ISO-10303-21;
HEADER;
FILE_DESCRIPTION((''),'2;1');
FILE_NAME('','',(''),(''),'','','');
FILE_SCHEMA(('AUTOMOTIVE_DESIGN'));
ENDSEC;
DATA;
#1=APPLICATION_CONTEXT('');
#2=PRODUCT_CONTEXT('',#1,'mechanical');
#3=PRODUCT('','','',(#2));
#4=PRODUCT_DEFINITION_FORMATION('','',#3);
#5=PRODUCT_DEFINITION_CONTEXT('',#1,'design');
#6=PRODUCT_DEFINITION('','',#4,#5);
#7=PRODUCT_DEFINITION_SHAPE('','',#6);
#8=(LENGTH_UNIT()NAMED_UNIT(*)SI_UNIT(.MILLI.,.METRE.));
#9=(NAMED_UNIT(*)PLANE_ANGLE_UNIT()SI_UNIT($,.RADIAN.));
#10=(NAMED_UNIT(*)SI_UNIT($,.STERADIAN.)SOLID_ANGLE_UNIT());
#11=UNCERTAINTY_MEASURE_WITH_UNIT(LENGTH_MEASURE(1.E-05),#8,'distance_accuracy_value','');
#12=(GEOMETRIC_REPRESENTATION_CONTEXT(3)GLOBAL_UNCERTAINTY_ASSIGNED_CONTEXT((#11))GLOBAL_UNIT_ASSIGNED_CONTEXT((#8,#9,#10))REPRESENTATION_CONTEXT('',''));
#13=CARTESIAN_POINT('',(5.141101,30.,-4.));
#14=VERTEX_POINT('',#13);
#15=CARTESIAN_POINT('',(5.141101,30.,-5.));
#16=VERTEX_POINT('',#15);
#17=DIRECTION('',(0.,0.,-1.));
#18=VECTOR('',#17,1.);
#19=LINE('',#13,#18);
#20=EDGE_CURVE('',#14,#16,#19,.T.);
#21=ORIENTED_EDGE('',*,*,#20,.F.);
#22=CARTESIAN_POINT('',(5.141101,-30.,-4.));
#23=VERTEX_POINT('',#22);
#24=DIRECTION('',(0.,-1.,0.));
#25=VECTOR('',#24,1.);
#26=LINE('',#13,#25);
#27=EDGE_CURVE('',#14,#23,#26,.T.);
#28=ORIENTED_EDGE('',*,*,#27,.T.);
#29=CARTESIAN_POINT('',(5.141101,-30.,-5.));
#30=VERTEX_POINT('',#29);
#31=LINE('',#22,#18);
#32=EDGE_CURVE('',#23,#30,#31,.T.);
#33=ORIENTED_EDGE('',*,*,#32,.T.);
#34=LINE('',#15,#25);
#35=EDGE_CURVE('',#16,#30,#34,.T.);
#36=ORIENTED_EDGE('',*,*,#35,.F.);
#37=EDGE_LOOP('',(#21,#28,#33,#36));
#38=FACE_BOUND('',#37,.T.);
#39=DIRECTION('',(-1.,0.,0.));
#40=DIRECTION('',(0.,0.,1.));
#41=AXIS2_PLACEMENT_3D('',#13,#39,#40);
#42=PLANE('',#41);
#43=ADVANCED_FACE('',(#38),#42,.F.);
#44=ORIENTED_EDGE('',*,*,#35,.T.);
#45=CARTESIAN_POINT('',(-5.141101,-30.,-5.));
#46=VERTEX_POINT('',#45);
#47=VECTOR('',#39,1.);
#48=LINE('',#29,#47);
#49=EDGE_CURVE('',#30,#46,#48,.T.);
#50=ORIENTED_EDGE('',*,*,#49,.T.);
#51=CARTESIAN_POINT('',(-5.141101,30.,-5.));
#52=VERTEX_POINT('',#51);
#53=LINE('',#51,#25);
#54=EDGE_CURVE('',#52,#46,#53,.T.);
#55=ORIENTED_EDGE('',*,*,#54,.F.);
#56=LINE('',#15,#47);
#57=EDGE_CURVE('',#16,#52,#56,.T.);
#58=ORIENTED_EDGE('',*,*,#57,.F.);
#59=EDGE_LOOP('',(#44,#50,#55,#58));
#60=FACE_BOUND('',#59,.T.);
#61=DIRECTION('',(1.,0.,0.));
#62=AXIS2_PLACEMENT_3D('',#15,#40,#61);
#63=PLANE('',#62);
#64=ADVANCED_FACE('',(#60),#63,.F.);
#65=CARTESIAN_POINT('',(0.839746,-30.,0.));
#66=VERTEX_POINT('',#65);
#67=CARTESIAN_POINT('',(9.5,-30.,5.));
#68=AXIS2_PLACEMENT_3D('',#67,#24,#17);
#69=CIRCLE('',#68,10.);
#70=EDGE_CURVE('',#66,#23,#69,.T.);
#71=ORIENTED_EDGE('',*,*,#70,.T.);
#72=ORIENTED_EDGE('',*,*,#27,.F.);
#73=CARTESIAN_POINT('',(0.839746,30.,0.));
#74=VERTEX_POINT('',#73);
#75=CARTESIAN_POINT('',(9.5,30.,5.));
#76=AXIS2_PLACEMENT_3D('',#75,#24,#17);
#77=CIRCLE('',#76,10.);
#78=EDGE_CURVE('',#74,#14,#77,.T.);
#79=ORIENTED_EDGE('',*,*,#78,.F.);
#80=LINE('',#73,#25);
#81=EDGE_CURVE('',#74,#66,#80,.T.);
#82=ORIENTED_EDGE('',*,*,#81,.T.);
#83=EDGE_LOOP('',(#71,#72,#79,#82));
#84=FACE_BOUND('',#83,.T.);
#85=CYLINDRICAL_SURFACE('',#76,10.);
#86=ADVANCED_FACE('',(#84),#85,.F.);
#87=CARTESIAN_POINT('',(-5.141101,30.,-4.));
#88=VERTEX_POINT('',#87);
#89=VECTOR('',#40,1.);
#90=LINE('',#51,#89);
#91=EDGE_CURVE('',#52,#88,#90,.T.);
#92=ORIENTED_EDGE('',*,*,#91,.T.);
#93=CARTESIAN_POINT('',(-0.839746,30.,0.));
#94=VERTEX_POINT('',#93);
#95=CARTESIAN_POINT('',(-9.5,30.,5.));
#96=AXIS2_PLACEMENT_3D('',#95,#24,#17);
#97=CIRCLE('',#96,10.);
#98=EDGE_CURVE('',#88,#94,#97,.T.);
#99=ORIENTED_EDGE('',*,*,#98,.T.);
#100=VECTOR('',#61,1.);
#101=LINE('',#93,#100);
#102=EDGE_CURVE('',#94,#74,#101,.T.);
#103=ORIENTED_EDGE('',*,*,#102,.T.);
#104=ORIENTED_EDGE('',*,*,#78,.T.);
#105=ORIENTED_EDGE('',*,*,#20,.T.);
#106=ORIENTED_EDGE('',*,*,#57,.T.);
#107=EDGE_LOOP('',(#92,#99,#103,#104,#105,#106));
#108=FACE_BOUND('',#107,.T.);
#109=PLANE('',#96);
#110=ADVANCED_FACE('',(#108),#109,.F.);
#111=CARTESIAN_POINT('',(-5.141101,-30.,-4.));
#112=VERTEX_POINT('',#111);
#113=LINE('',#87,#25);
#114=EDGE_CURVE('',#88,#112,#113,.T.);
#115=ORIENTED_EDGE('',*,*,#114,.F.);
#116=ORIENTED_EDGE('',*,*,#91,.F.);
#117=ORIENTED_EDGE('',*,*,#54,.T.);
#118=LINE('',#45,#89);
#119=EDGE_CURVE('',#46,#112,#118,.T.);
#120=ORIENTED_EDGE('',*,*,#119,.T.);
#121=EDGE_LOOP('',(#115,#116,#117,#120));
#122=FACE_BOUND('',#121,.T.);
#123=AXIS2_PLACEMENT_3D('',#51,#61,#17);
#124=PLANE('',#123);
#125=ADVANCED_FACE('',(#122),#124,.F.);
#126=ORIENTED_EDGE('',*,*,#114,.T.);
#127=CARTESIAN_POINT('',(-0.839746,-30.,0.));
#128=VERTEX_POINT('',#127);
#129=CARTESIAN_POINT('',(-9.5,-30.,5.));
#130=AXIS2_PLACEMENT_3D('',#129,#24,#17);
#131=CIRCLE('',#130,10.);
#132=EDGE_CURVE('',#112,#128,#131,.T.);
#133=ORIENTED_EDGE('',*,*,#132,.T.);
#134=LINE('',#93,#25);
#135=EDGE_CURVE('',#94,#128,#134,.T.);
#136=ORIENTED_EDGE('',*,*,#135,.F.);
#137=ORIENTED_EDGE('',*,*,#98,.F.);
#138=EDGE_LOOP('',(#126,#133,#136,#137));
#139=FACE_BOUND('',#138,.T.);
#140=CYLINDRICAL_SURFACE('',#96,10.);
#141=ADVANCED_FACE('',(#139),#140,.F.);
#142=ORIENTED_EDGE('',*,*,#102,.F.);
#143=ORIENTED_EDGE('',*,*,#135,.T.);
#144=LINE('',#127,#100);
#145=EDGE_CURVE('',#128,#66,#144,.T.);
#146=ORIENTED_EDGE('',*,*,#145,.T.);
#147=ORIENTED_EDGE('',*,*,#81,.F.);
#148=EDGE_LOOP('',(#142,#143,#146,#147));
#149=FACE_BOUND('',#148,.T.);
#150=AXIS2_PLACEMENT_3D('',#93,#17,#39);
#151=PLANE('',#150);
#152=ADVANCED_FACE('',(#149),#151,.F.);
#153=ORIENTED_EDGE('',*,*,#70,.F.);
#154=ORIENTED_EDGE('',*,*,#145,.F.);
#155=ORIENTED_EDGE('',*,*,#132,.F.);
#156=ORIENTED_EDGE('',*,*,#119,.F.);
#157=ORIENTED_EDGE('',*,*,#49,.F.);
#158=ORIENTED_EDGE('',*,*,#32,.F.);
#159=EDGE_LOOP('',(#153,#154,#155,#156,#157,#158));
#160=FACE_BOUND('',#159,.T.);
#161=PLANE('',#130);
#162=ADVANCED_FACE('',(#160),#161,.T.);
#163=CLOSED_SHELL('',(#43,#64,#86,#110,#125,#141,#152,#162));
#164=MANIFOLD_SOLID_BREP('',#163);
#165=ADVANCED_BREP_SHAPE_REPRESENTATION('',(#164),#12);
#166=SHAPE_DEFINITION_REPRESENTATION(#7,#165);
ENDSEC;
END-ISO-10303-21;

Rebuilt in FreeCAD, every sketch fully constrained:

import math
import FreeCAD as App
import Part
import Sketcher

doc = App.newDocument("Part")
params = doc.addObject("Spreadsheet::Sheet", "Params")
for row, (alias, value) in enumerate([
    ("sketch1_radius", "10 mm"),
    ("sketch1_height", "1 mm"),
    ("pad1_length", "60 mm"),
], start=1):
    params.set(f"A{row}", alias)
    params.set(f"B{row}", "=" + value)
    params.setAlias(f"B{row}", alias)

body = doc.addObject("PartDesign::Body", "Body")

sketch1 = doc.addObject("Sketcher::SketchObject", "Sketch")
body.addObject(sketch1)
sketch1.AttachmentSupport = (doc.XZ_Plane, [""])
sketch1.MapMode = "FlatFace"
sketch1.addGeometry([
    Part.LineSegment(App.Vector(-0.839746, 0, 0), App.Vector(0.839746, 0, 0)),
    Part.ArcOfCircle(Part.Circle(App.Vector(9.5, 5, 0), App.Vector(0, 0, 1), 10), math.radians(-150), math.radians(-115.841933)),
    Part.LineSegment(App.Vector(5.141101, -4, 0), App.Vector(5.141101, -5, 0)),
    Part.LineSegment(App.Vector(5.141101, -5, 0), App.Vector(-5.141101, -5, 0)),
    Part.LineSegment(App.Vector(-5.141101, -5, 0), App.Vector(-5.141101, -4, 0)),
    Part.ArcOfCircle(Part.Circle(App.Vector(-9.5, 5, 0), App.Vector(0, 0, 1), 10), math.radians(-64.158067), math.radians(-30)),
], False)
sketch1.addConstraint([
    Sketcher.Constraint("Coincident", 0, 2, 1, 1),
    Sketcher.Constraint("Coincident", 1, 2, 2, 1),
    Sketcher.Constraint("Coincident", 2, 2, 3, 1),
    Sketcher.Constraint("Coincident", 3, 2, 4, 1),
    Sketcher.Constraint("Coincident", 4, 2, 5, 1),
    Sketcher.Constraint("Coincident", 5, 2, 0, 1),
    Sketcher.Constraint("Horizontal", 0),
    Sketcher.Constraint("Vertical", 2),
    Sketcher.Constraint("Horizontal", 3),
    Sketcher.Constraint("Vertical", 4),
    Sketcher.Constraint("Equal", 1, 5),
    Sketcher.Constraint("Symmetric", 0, 2, 5, 2, -1, 1),
    Sketcher.Constraint("Symmetric", 1, 2, 4, 2, -2),
    Sketcher.Constraint("Radius", 1, 10.0),
    Sketcher.Constraint("DistanceY", 2, 2, 2, 1, 1.0),
    Sketcher.Constraint("DistanceY", -1, 1, 1, 3, 5.0),
    Sketcher.Constraint("DistanceY", 1, 2, -1, 1, 4.0),
    Sketcher.Constraint("DistanceX", 5, 3, 1, 3, 19.0),
])
sketch1.setExpression("Constraints[13]", "Params.sketch1_radius")
sketch1.setExpression("Constraints[14]", "Params.sketch1_height")
pad1 = doc.addObject("PartDesign::Pad", "Pad")
body.addObject(pad1)
pad1.Profile = sketch1
pad1.setExpression("Length", "Params.pad1_length")
pad1.Midplane = True

doc.recompute()
